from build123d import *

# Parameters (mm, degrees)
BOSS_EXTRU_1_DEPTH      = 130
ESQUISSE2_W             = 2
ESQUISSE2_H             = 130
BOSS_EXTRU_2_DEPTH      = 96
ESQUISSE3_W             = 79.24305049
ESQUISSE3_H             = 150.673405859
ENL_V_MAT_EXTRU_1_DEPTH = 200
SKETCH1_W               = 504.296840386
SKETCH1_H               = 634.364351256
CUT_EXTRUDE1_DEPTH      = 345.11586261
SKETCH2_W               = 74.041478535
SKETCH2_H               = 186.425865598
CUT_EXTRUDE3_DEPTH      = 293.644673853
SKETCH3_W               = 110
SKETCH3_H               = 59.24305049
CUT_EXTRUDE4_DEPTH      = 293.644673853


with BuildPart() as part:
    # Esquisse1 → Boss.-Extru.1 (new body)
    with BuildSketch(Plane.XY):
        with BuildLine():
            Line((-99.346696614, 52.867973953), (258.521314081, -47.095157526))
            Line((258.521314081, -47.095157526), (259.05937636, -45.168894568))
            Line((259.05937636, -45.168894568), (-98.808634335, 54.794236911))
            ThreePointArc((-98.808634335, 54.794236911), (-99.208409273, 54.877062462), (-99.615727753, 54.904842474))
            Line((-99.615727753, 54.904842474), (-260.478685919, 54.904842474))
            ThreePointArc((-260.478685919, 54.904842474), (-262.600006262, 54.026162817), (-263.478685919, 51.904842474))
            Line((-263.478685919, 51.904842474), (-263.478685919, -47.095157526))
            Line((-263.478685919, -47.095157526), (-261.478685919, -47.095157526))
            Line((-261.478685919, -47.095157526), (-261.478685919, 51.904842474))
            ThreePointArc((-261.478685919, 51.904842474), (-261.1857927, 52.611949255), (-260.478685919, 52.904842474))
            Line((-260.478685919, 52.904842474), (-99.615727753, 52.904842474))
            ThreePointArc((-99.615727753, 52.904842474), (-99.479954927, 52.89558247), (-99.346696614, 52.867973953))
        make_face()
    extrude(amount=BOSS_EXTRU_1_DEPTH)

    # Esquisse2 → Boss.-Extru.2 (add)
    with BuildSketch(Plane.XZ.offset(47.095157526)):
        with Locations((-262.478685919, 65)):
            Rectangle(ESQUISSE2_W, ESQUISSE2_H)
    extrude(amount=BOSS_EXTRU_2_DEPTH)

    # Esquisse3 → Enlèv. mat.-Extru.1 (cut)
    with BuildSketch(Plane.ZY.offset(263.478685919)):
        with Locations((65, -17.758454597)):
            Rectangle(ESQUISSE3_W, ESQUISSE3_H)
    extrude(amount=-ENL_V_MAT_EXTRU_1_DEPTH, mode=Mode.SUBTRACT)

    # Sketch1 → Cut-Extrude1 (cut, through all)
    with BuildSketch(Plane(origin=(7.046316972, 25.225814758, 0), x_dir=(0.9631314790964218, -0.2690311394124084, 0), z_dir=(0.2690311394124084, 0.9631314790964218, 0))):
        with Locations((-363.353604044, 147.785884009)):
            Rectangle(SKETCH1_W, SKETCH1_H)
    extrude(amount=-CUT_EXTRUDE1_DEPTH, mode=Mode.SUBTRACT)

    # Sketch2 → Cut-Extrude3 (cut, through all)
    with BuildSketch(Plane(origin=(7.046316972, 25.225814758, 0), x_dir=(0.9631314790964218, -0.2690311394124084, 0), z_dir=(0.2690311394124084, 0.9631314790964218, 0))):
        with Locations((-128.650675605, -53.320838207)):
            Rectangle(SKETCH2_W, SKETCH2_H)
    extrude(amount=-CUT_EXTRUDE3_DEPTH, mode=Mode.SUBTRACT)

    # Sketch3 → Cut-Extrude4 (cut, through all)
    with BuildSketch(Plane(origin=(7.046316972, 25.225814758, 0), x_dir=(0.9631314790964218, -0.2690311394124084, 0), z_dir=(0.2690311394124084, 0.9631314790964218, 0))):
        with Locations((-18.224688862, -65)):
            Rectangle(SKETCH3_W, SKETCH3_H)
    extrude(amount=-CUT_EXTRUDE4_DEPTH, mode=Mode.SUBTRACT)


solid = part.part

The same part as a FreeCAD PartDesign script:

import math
import FreeCAD as App
import Part
import Sketcher

doc = App.newDocument("Part")
body = doc.addObject("PartDesign::Body", "Body")

# Sketch on XY plane
sketch1 = body.newObject("Sketcher::SketchObject", "Sketch")
sketch1.AttachmentSupport = (doc.getObject("XY_Plane"), [""])
sketch1.MapMode = "FlatFace"
sketch1.addGeometry(Part.LineSegment(App.Vector(-99.346697, 52.867974, 0), App.Vector(258.521314, -47.095158, 0)), False)
sketch1.addGeometry(Part.LineSegment(App.Vector(258.521314, -47.095158, 0), App.Vector(259.059376, -45.168895, 0)), False)
sketch1.addGeometry(Part.LineSegment(App.Vector(259.059376, -45.168895, 0), App.Vector(-98.808634, 54.794237, 0)), False)
sketch1.addGeometry(Part.ArcOfCircle(Part.Circle(App.Vector(-99.615728, 51.904843, 0), App.Vector(0, 0, 1), 3), math.radians(74.393378), math.radians(90)), False)
sketch1.addGeometry(Part.LineSegment(App.Vector(-99.615728, 54.904842, 0), App.Vector(-260.478686, 54.904842, 0)), False)
sketch1.addGeometry(Part.ArcOfCircle(Part.Circle(App.Vector(-260.478686, 51.904842, 0), App.Vector(0, 0, 1), 3), math.radians(90), math.radians(180)), False)
sketch1.addGeometry(Part.LineSegment(App.Vector(-263.478686, 51.904842, 0), App.Vector(-263.478686, -47.095158, 0)), False)
sketch1.addGeometry(Part.LineSegment(App.Vector(-263.478686, -47.095158, 0), App.Vector(-261.478686, -47.095158, 0)), False)
sketch1.addGeometry(Part.LineSegment(App.Vector(-261.478686, -47.095158, 0), App.Vector(-261.478686, 51.904842, 0)), False)
sketch1.addGeometry(Part.ArcOfCircle(Part.Circle(App.Vector(-260.478686, 51.904842, 0), App.Vector(0, 0, 1), 1), math.radians(90), math.radians(180)), False)
sketch1.addGeometry(Part.LineSegment(App.Vector(-260.478686, 52.904842, 0), App.Vector(-99.615728, 52.904842, 0)), False)
sketch1.addGeometry(Part.ArcOfCircle(Part.Circle(App.Vector(-99.615728, 51.904842, 0), App.Vector(0, 0, 1), 1), math.radians(74.393378), math.radians(90)), False)
sketch1.addConstraint(Sketcher.Constraint("Coincident", 0, 2, 1, 1))
sketch1.addConstraint(Sketcher.Constraint("Coincident", 1, 2, 2, 1))
sketch1.addConstraint(Sketcher.Constraint("Tangent", 2, 2, 3, 1))
sketch1.addConstraint(Sketcher.Constraint("Tangent", 3, 2, 4, 1))
sketch1.addConstraint(Sketcher.Constraint("Tangent", 4, 2, 5, 1))
sketch1.addConstraint(Sketcher.Constraint("Tangent", 5, 2, 6, 1))
sketch1.addConstraint(Sketcher.Constraint("Coincident", 6, 2, 7, 1))
sketch1.addConstraint(Sketcher.Constraint("Coincident", 7, 2, 8, 1))
sketch1.addConstraint(Sketcher.Constraint("Tangent", 8, 2, 9, 2))
sketch1.addConstraint(Sketcher.Constraint("Tangent", 9, 1, 10, 1))
sketch1.addConstraint(Sketcher.Constraint("Tangent", 10, 2, 11, 2))
sketch1.addConstraint(Sketcher.Constraint("Tangent", 11, 1, 0, 1))
sketch1.addConstraint(Sketcher.Constraint("Horizontal", 4))
sketch1.addConstraint(Sketcher.Constraint("Vertical", 6))
sketch1.addConstraint(Sketcher.Constraint("Horizontal", 7))
sketch1.addConstraint(Sketcher.Constraint("Vertical", 8))
sketch1.addConstraint(Sketcher.Constraint("Horizontal", 10))
sketch1.addConstraint(Sketcher.Constraint("Coincident", 9, 3, 5, 3))
sketch1.addConstraint(Sketcher.Constraint("Coincident", 11, 3, 3, 3))
sketch1.addConstraint(Sketcher.Constraint("Equal", 3, 5))
sketch1.addConstraint(Sketcher.Constraint("Perpendicular", 0, 1))
sketch1.addConstraint(Sketcher.Constraint("Perpendicular", 1, 2))
sketch1.addConstraint(Sketcher.Constraint("Horizontal", 0, 2, 6, 2))
sketch1.addConstraint(Sketcher.Constraint("Radius", 3, 3.0))
sketch1.addConstraint(Sketcher.Constraint("Radius", 9, 1.0))
sketch1.addConstraint(Sketcher.Constraint("DistanceY", 6, 2, 6, 1, 99.0))
sketch1.addConstraint(Sketcher.Constraint("DistanceX", 5, 3, 0, 2, 519.0))
sketch1.addConstraint(Sketcher.Constraint("DistanceX", 4, 2, 4, 1, 160.862958))
sketch1.addConstraint(Sketcher.Constraint("DistanceX", 3, 3, -1, 1, 99.615728))
sketch1.addConstraint(Sketcher.Constraint("DistanceY", -1, 1, 3, 3, 51.904843))
pad1 = body.newObject("PartDesign::Pad", "Pad")
pad1.Profile = sketch1
pad1.Length = 130

# Sketch on XZ plane
sketch2 = body.newObject("Sketcher::SketchObject", "Sketch001")
sketch2.AttachmentSupport = (doc.getObject("XZ_Plane"), [""])
sketch2.MapMode = "FlatFace"
sketch2.AttachmentOffset = App.Placement(App.Vector(0, 0, 47.095158), App.Rotation())
sketch2.addGeometry(Part.LineSegment(App.Vector(-263.478686, 130, 0), App.Vector(-263.478686, 0, 0)), False)
sketch2.addGeometry(Part.LineSegment(App.Vector(-263.478686, 0, 0), App.Vector(-261.478686, 0, 0)), False)
sketch2.addGeometry(Part.LineSegment(App.Vector(-261.478686, 0, 0), App.Vector(-261.478686, 130, 0)), False)
sketch2.addGeometry(Part.LineSegment(App.Vector(-261.478686, 130, 0), App.Vector(-263.478686, 130, 0)), False)
sketch2.addConstraint(Sketcher.Constraint("Coincident", 0, 2, 1, 1))
sketch2.addConstraint(Sketcher.Constraint("Coincident", 1, 2, 2, 1))
sketch2.addConstraint(Sketcher.Constraint("Coincident", 2, 2, 3, 1))
sketch2.addConstraint(Sketcher.Constraint("Coincident", 3, 2, 0, 1))
sketch2.addConstraint(Sketcher.Constraint("Vertical", 0))
sketch2.addConstraint(Sketcher.Constraint("Horizontal", 1))
sketch2.addConstraint(Sketcher.Constraint("Vertical", 2))
sketch2.addConstraint(Sketcher.Constraint("Horizontal", 3))
sketch2.addConstraint(Sketcher.Constraint("PointOnObject", 0, 2, -1))
sketch2.addConstraint(Sketcher.Constraint("DistanceX", 1, 1, 1, 2, 2.0))
sketch2.addConstraint(Sketcher.Constraint("DistanceY", 0, 2, 0, 1, 130.0))
sketch2.addConstraint(Sketcher.Constraint("DistanceX", 0, 2, -1, 1, 263.478686))
pad2 = body.newObject("PartDesign::Pad", "Pad001")
pad2.Profile = sketch2
pad2.Length = 96

# Sketch on YZ plane
sketch3 = body.newObject("Sketcher::SketchObject", "Sketch002")
sketch3.AttachmentSupport = (doc.getObject("YZ_Plane"), [""])
sketch3.MapMode = "FlatFace"
sketch3.AttachmentOffset = App.Placement(App.Vector(0, 0, -263.478686), App.Rotation())
sketch3.addGeometry(Part.LineSegment(App.Vector(57.578248, 25.378475, 0), App.Vector(-93.095158, 25.378475, 0)), False)
sketch3.addGeometry(Part.LineSegment(App.Vector(-93.095158, 25.378475, 0), App.Vector(-93.095158, 104.621525, 0)), False)
sketch3.addGeometry(Part.LineSegment(App.Vector(-93.095158, 104.621525, 0), App.Vector(57.578248, 104.621525, 0)), False)
sketch3.addGeometry(Part.LineSegment(App.Vector(57.578248, 104.621525, 0), App.Vector(57.578248, 25.378475, 0)), False)
sketch3.addConstraint(Sketcher.Constraint("Coincident", 0, 2, 1, 1))
sketch3.addConstraint(Sketcher.Constraint("Coincident", 1, 2, 2, 1))
sketch3.addConstraint(Sketcher.Constraint("Coincident", 2, 2, 3, 1))
sketch3.addConstraint(Sketcher.Constraint("Coincident", 3, 2, 0, 1))
sketch3.addConstraint(Sketcher.Constraint("Horizontal", 0))
sketch3.addConstraint(Sketcher.Constraint("Vertical", 1))
sketch3.addConstraint(Sketcher.Constraint("Horizontal", 2))
sketch3.addConstraint(Sketcher.Constraint("Vertical", 3))
sketch3.addConstraint(Sketcher.Constraint("DistanceY", 1, 1, 1, 2, 79.24305))
sketch3.addConstraint(Sketcher.Constraint("DistanceX", 0, 2, 0, 1, 150.673406))
sketch3.addConstraint(Sketcher.Constraint("DistanceX", -1, 1, 2, 2, 57.578248))
sketch3.addConstraint(Sketcher.Constraint("DistanceY", -1, 1, 0, 2, 25.378475))
pocket1 = body.newObject("PartDesign::Pocket", "Pocket")
pocket1.Profile = sketch3
pocket1.Length = 200
pocket1.Reversed = True

# Sketch on an angled plane
sketch4 = body.newObject("Sketcher::SketchObject", "Sketch003")
sketch4.Placement = App.Placement(App.Vector(7.046317, 25.225815, 0), App.Rotation(App.Vector(0.963131479, -0.269031139, 0), App.Vector(0, 0, -1), App.Vector(0.269031139, 0.963131479, 0), "ZXY"))
sketch4.addGeometry(Part.LineSegment(App.Vector(-615.502024, 464.968059, 0), App.Vector(-615.502024, -169.396291, 0)), False)
sketch4.addGeometry(Part.LineSegment(App.Vector(-615.502024, -169.396291, 0), App.Vector(-111.205184, -169.396291, 0)), False)
sketch4.addGeometry(Part.LineSegment(App.Vector(-111.205184, -169.396291, 0), App.Vector(-111.205184, 464.968059, 0)), False)
sketch4.addGeometry(Part.LineSegment(App.Vector(-111.205184, 464.968059, 0), App.Vector(-615.502024, 464.968059, 0)), False)
sketch4.addConstraint(Sketcher.Constraint("Coincident", 0, 2, 1, 1))
sketch4.addConstraint(Sketcher.Constraint("Coincident", 1, 2, 2, 1))
sketch4.addConstraint(Sketcher.Constraint("Coincident", 2, 2, 3, 1))
sketch4.addConstraint(Sketcher.Constraint("Coincident", 3, 2, 0, 1))
sketch4.addConstraint(Sketcher.Constraint("Vertical", 0))
sketch4.addConstraint(Sketcher.Constraint("Horizontal", 1))
sketch4.addConstraint(Sketcher.Constraint("Vertical", 2))
sketch4.addConstraint(Sketcher.Constraint("Horizontal", 3))
sketch4.addConstraint(Sketcher.Constraint("DistanceX", 1, 1, 1, 2, 504.29684))
sketch4.addConstraint(Sketcher.Constraint("DistanceY", 0, 2, 0, 1, 634.364351))
sketch4.addConstraint(Sketcher.Constraint("DistanceY", 0, 2, -1, 1, 169.396291))
sketch4.addConstraint(Sketcher.Constraint("DistanceX", 0, 2, -1, 1, 615.502024))
pocket2 = body.newObject("PartDesign::Pocket", "Pocket001")
pocket2.Profile = sketch4
pocket2.Type = "ThroughAll"

# Sketch on an angled plane
sketch5 = body.newObject("Sketcher::SketchObject", "Sketch004")
sketch5.Placement = App.Placement(App.Vector(7.046317, 25.225815, 0), App.Rotation(App.Vector(0.963131479, -0.269031139, 0), App.Vector(0, 0, -1), App.Vector(0.269031139, 0.963131479, 0), "ZXY"))
sketch5.addGeometry(Part.LineSegment(App.Vector(-165.671415, 39.892095, 0), App.Vector(-165.671415, -146.533771, 0)), False)
sketch5.addGeometry(Part.LineSegment(App.Vector(-165.671415, -146.533771, 0), App.Vector(-91.629936, -146.533771, 0)), False)
sketch5.addGeometry(Part.LineSegment(App.Vector(-91.629936, -146.533771, 0), App.Vector(-91.629936, 39.892095, 0)), False)
sketch5.addGeometry(Part.LineSegment(App.Vector(-91.629936, 39.892095, 0), App.Vector(-165.671415, 39.892095, 0)), False)
sketch5.addConstraint(Sketcher.Constraint("Coincident", 0, 2, 1, 1))
sketch5.addConstraint(Sketcher.Constraint("Coincident", 1, 2, 2, 1))
sketch5.addConstraint(Sketcher.Constraint("Coincident", 2, 2, 3, 1))
sketch5.addConstraint(Sketcher.Constraint("Coincident", 3, 2, 0, 1))
sketch5.addConstraint(Sketcher.Constraint("Vertical", 0))
sketch5.addConstraint(Sketcher.Constraint("Horizontal", 1))
sketch5.addConstraint(Sketcher.Constraint("Vertical", 2))
sketch5.addConstraint(Sketcher.Constraint("Horizontal", 3))
sketch5.addConstraint(Sketcher.Constraint("DistanceX", 1, 1, 1, 2, 74.041479))
sketch5.addConstraint(Sketcher.Constraint("DistanceY", 0, 2, 0, 1, 186.425865))
sketch5.addConstraint(Sketcher.Constraint("DistanceY", 0, 2, -1, 1, 146.533771))
sketch5.addConstraint(Sketcher.Constraint("DistanceX", 0, 2, -1, 1, 165.671415))
pocket3 = body.newObject("PartDesign::Pocket", "Pocket002")
pocket3.Profile = sketch5
pocket3.Type = "ThroughAll"

# Sketch on an angled plane
sketch6 = body.newObject("Sketcher::SketchObject", "Sketch005")
sketch6.Placement = App.Placement(App.Vector(7.046317, 25.225815, 0), App.Rotation(App.Vector(0.963131479, -0.269031139, 0), App.Vector(0, 0, -1), App.Vector(0.269031139, 0.963131479, 0), "ZXY"))
sketch6.addGeometry(Part.LineSegment(App.Vector(-73.224689, -35.378475, 0), App.Vector(-73.224689, -94.621525, 0)), False)
sketch6.addGeometry(Part.LineSegment(App.Vector(-73.224689, -94.621525, 0), App.Vector(36.775311, -94.621525, 0)), False)
sketch6.addGeometry(Part.LineSegment(App.Vector(36.775311, -94.621525, 0), App.Vector(36.775311, -35.378475, 0)), False)
sketch6.addGeometry(Part.LineSegment(App.Vector(36.775311, -35.378475, 0), App.Vector(-73.224689, -35.378475, 0)), False)
sketch6.addConstraint(Sketcher.Constraint("Coincident", 0, 2, 1, 1))
sketch6.addConstraint(Sketcher.Constraint("Coincident", 1, 2, 2, 1))
sketch6.addConstraint(Sketcher.Constraint("Coincident", 2, 2, 3, 1))
sketch6.addConstraint(Sketcher.Constraint("Coincident", 3, 2, 0, 1))
sketch6.addConstraint(Sketcher.Constraint("Vertical", 0))
sketch6.addConstraint(Sketcher.Constraint("Horizontal", 1))
sketch6.addConstraint(Sketcher.Constraint("Vertical", 2))
sketch6.addConstraint(Sketcher.Constraint("Horizontal", 3))
sketch6.addConstraint(Sketcher.Constraint("DistanceX", 1, 1, 1, 2, 110.0))
sketch6.addConstraint(Sketcher.Constraint("DistanceY", 0, 2, 0, 1, 59.24305))
sketch6.addConstraint(Sketcher.Constraint("DistanceX", 0, 2, -1, 1, 73.224689))
sketch6.addConstraint(Sketcher.Constraint("DistanceY", 0, 2, -1, 1, 94.621525))
pocket4 = body.newObject("PartDesign::Pocket", "Pocket003")
pocket4.Profile = sketch6
pocket4.Type = "ThroughAll"

doc.recompute()
